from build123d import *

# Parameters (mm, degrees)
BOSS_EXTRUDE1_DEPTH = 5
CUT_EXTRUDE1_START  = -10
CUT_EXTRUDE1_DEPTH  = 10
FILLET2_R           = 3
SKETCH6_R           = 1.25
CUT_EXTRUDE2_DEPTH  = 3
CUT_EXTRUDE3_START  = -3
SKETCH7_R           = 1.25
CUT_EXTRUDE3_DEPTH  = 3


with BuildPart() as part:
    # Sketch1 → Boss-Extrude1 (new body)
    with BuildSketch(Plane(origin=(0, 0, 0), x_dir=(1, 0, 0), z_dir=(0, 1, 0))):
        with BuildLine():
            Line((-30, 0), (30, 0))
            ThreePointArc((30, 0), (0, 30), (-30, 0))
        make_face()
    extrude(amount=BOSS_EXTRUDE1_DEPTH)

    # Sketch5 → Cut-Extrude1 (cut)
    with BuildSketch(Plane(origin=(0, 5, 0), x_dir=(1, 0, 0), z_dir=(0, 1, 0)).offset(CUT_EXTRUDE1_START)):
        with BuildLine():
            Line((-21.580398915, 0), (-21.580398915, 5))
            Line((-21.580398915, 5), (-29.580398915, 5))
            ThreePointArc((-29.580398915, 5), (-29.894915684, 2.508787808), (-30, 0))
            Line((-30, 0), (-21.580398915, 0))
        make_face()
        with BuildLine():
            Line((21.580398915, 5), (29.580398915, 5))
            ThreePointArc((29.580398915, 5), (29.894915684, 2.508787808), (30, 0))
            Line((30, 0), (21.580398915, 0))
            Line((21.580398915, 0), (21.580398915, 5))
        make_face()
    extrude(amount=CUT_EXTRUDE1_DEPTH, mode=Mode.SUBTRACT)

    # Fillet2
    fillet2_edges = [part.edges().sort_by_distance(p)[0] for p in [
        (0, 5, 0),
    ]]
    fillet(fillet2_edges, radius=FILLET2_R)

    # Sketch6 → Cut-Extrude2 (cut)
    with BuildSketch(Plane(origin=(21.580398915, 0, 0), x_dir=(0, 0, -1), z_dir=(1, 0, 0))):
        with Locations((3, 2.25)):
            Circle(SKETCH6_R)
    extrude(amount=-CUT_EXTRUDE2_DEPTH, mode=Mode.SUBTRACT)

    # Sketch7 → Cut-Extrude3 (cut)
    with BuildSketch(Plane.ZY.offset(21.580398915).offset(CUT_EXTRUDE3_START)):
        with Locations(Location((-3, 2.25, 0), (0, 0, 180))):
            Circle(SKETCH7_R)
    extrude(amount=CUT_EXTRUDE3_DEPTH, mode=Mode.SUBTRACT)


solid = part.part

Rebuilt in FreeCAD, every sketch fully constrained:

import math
import FreeCAD as App
import Part
import Sketcher
from FreeCAD import Vector


def edges_at(feature, points):
    """Names of the edges that pass closest to the given points."""
    edges = feature.Shape.Edges
    near = lambda p: min(range(len(edges)), key=lambda i: edges[i].distToShape(Part.Vertex(*p))[0])
    return sorted({f"Edge{near(p) + 1}" for p in points})

doc = App.newDocument("Part")
body = doc.addObject("PartDesign::Body", "Body")

# Sketch on XZ plane
sketch1 = doc.addObject("Sketcher::SketchObject", "Sketch")
body.addObject(sketch1)
sketch1.AttachmentSupport = (doc.XZ_Plane, [""])
sketch1.MapMode = "FlatFace"
sketch1.addGeometry([
    Part.LineSegment(Vector(-30, 0, 0), Vector(30, 0, 0)),
    Part.ArcOfCircle(Part.Circle(Vector(0, 0, 0), Vector(0, 0, 1), 30), math.radians(180), math.radians(360)),
], False)
sketch1.addConstraint([
    Sketcher.Constraint("Coincident", 0, 1, 1, 1),
    Sketcher.Constraint("Coincident", 1, 2, 0, 2),
    Sketcher.Constraint("Horizontal", 0),
    Sketcher.Constraint("Coincident", 1, 3, -1, 1),
    Sketcher.Constraint("PointOnObject", 0, 1, -1),
    Sketcher.Constraint("Radius", 1, 30.0),
])
pad1 = doc.addObject("PartDesign::Pad", "Pad")
body.addObject(pad1)
pad1.Profile = sketch1
pad1.Length = 5
pad1.Reversed = True

# Sketch on XZ plane
sketch2 = doc.addObject("Sketcher::SketchObject", "Sketch001")
body.addObject(sketch2)
sketch2.AttachmentSupport = (doc.XZ_Plane, [""])
sketch2.MapMode = "FlatFace"
sketch2.AttachmentOffset = App.Placement(Vector(0, 0, 5), App.Rotation())
sketch2.addGeometry([
    Part.LineSegment(Vector(-21.580399, 0, 0), Vector(-21.580399, -5, 0)),  # 0
    Part.LineSegment(Vector(-21.580399, -5, 0), Vector(-29.580399, -5, 0)),  # 1
    Part.ArcOfCircle(Part.Circle(Vector(0, 0, 0), Vector(0, 0, 1), 30), math.radians(180), math.radians(189.594068)),  # 2
    Part.LineSegment(Vector(-30, 0, 0), Vector(-21.580399, 0, 0)),  # 3
    Part.LineSegment(Vector(29.580399, -5, 0), Vector(21.580399, -5, 0)),  # 4
    Part.LineSegment(Vector(21.580399, -5, 0), Vector(21.580399, 0, 0)),  # 5
    Part.LineSegment(Vector(21.580399, 0, 0), Vector(30, 0, 0)),  # 6
    Part.ArcOfCircle(Part.Circle(Vector(0, 0, 0), Vector(0, 0, 1), 30), math.radians(-9.594068), math.radians(0)),  # 7
], False)
sketch2.addConstraint([
    Sketcher.Constraint("Coincident", 0, 2, 1, 1),
    Sketcher.Constraint("Coincident", 1, 2, 2, 2),
    Sketcher.Constraint("Coincident", 2, 1, 3, 1),
    Sketcher.Constraint("Coincident", 3, 2, 0, 1),
    Sketcher.Constraint("Coincident", 4, 2, 5, 1),
    Sketcher.Constraint("Coincident", 5, 2, 6, 1),
    Sketcher.Constraint("Coincident", 6, 2, 7, 2),
    Sketcher.Constraint("Coincident", 7, 1, 4, 1),
    Sketcher.Constraint("Vertical", 0),
    Sketcher.Constraint("Horizontal", 1),
    Sketcher.Constraint("Horizontal", 3),
    Sketcher.Constraint("Horizontal", 4),
    Sketcher.Constraint("Vertical", 5),
    Sketcher.Constraint("Horizontal", 6),
    Sketcher.Constraint("Coincident", 2, 3, -1, 1),
    Sketcher.Constraint("Coincident", 7, 3, -1, 1),
    Sketcher.Constraint("Equal", 2, 7),
    Sketcher.Constraint("Symmetric", 3, 2, 5, 2, -1, 1),
    Sketcher.Constraint("PointOnObject", 2, 1, -1),
    Sketcher.Constraint("Horizontal", 1, 2, 4, 2),
    Sketcher.Constraint("Radius", 2, 30.0),
    Sketcher.Constraint("DistanceX", 1, 2, 1, 1, 8.0),
    Sketcher.Constraint("DistanceY", 0, 2, 0, 1, 5.0),
])
pocket1 = doc.addObject("PartDesign::Pocket", "Pocket")
body.addObject(pocket1)
pocket1.Profile = sketch2
pocket1.Length = 10
doc.recompute()

fillet = doc.addObject("PartDesign::Fillet", "Fillet")
body.addObject(fillet)
fillet.Base = (pocket1, edges_at(pocket1, [(0, 5, 0)]))
fillet.Radius = 3

# Sketch on YZ plane
sketch3 = doc.addObject("Sketcher::SketchObject", "Sketch002")
body.addObject(sketch3)
sketch3.AttachmentSupport = (doc.YZ_Plane, [""])
sketch3.MapMode = "FlatFace"
sketch3.AttachmentOffset = App.Placement(Vector(0, 0, 21.580399), App.Rotation())
sketch3.addGeometry(Part.Circle(Vector(2.25, -3, 0), Vector(0, 0, 1), 1.25), False)
sketch3.addConstraint([
    Sketcher.Constraint("Diameter", 0, 2.5),
    Sketcher.Constraint("DistanceY", 0, 3, -1, 1, 3.0),
    Sketcher.Constraint("DistanceX", -1, 1, 0, 3, 2.25),
])
pocket2 = doc.addObject("PartDesign::Pocket", "Pocket001")
body.addObject(pocket2)
pocket2.Profile = sketch3
pocket2.Length = 3

# Sketch on YZ plane
sketch4 = doc.addObject("Sketcher::SketchObject", "Sketch003")
body.addObject(sketch4)
sketch4.AttachmentSupport = (doc.YZ_Plane, [""])
sketch4.MapMode = "FlatFace"
sketch4.AttachmentOffset = App.Placement(Vector(0, 0, -18.580399), App.Rotation())
sketch4.addGeometry(Part.Circle(Vector(2.25, -3, 0), Vector(0, 0, 1), 1.25), False)
sketch4.addConstraint([
    Sketcher.Constraint("Diameter", 0, 2.5),
    Sketcher.Constraint("DistanceY", 0, 3, -1, 1, 3.0),
    Sketcher.Constraint("DistanceX", -1, 1, 0, 3, 2.25),
])
pocket3 = doc.addObject("PartDesign::Pocket", "Pocket002")
body.addObject(pocket3)
pocket3.Profile = sketch4
pocket3.Length = 3

doc.recompute()
